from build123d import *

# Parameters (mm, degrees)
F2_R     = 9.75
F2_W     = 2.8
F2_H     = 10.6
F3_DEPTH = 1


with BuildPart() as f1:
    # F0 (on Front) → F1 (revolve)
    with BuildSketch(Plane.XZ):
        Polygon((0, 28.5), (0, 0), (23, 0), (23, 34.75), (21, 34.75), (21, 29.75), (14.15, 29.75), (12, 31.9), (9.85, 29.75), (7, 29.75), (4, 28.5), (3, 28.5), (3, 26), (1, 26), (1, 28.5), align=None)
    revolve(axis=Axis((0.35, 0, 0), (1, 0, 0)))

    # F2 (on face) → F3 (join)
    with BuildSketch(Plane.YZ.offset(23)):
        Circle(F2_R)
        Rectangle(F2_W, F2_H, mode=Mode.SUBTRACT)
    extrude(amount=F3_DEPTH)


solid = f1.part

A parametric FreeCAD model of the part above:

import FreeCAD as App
import Part
import Sketcher

V = App.Vector

doc = App.newDocument("Part")
body = doc.addObject("PartDesign::Body", "Body")

# Sketch on XZ plane
sketch1 = body.newObject("Sketcher::SketchObject", "Sketch")
sketch1.AttachmentSupport = (doc.getObject("XZ_Plane"), [""])
sketch1.MapMode = "FlatFace"
sketch1.addGeometry(Part.LineSegment(V(0, 28.5, 0), V(0, 0, 0)), False)
sketch1.addGeometry(Part.LineSegment(V(0, 0, 0), V(23, 0, 0)), False)
sketch1.addGeometry(Part.LineSegment(V(23, 0, 0), V(23, 34.8, 0)), False)
sketch1.addGeometry(Part.LineSegment(V(23, 34.8, 0), V(21, 34.8, 0)), False)
sketch1.addGeometry(Part.LineSegment(V(21, 34.8, 0), V(21, 29.8, 0)), False)
sketch1.addGeometry(Part.LineSegment(V(21, 29.8, 0), V(14.2, 29.8, 0)), False)
sketch1.addGeometry(Part.LineSegment(V(14.2, 29.8, 0), V(12, 31.9, 0)), False)
sketch1.addGeometry(Part.LineSegment(V(12, 31.9, 0), V(9.8, 29.8, 0)), False)
sketch1.addGeometry(Part.LineSegment(V(9.8, 29.8, 0), V(7, 29.8, 0)), False)
sketch1.addGeometry(Part.LineSegment(V(7, 29.8, 0), V(4, 28.5, 0)), False)
sketch1.addGeometry(Part.LineSegment(V(4, 28.5, 0), V(3, 28.5, 0)), False)
sketch1.addGeometry(Part.LineSegment(V(3, 28.5, 0), V(3, 26, 0)), False)
sketch1.addGeometry(Part.LineSegment(V(3, 26, 0), V(1, 26, 0)), False)
sketch1.addGeometry(Part.LineSegment(V(1, 26, 0), V(1, 28.5, 0)), False)
sketch1.addGeometry(Part.LineSegment(V(1, 28.5, 0), V(0, 28.5, 0)), False)
sketch1.addConstraint(Sketcher.Constraint("Coincident", 0, 2, 1, 1))
sketch1.addConstraint(Sketcher.Constraint("Coincident", 1, 2, 2, 1))
sketch1.addConstraint(Sketcher.Constraint("Coincident", 2, 2, 3, 1))
sketch1.addConstraint(Sketcher.Constraint("Coincident", 3, 2, 4, 1))
sketch1.addConstraint(Sketcher.Constraint("Coincident", 4, 2, 5, 1))
sketch1.addConstraint(Sketcher.Constraint("Coincident", 5, 2, 6, 1))
sketch1.addConstraint(Sketcher.Constraint("Coincident", 6, 2, 7, 1))
sketch1.addConstraint(Sketcher.Constraint("Coincident", 7, 2, 8, 1))
sketch1.addConstraint(Sketcher.Constraint("Coincident", 8, 2, 9, 1))
sketch1.addConstraint(Sketcher.Constraint("Coincident", 9, 2, 10, 1))
sketch1.addConstraint(Sketcher.Constraint("Coincident", 10, 2, 11, 1))
sketch1.addConstraint(Sketcher.Constraint("Coincident", 11, 2, 12, 1))
sketch1.addConstraint(Sketcher.Constraint("Coincident", 12, 2, 13, 1))
sketch1.addConstraint(Sketcher.Constraint("Coincident", 13, 2, 14, 1))
sketch1.addConstraint(Sketcher.Constraint("Coincident", 14, 2, 0, 1))
sketch1.addConstraint(Sketcher.Constraint("Vertical", 0))
sketch1.addConstraint(Sketcher.Constraint("Horizontal", 1))
sketch1.addConstraint(Sketcher.Constraint("Vertical", 2))
sketch1.addConstraint(Sketcher.Constraint("Horizontal", 3))
sketch1.addConstraint(Sketcher.Constraint("Vertical", 4))
sketch1.addConstraint(Sketcher.Constraint("Horizontal", 5))
sketch1.addConstraint(Sketcher.Constraint("Horizontal", 8))
sketch1.addConstraint(Sketcher.Constraint("Horizontal", 10))
sketch1.addConstraint(Sketcher.Constraint("Vertical", 11))
sketch1.addConstraint(Sketcher.Constraint("Horizontal", 12))
sketch1.addConstraint(Sketcher.Constraint("Vertical", 13))
sketch1.addConstraint(Sketcher.Constraint("Horizontal", 14))
sketch1.addConstraint(Sketcher.Constraint("Coincident", 0, 2, -1, 1))
sketch1.addConstraint(Sketcher.Constraint("Perpendicular", 6, 7))
sketch1.addConstraint(Sketcher.Constraint("Horizontal", 5, 2, 7, 2))
sketch1.addConstraint(Sketcher.Constraint("Horizontal", 10, 2, 13, 2))
sketch1.addConstraint(Sketcher.Constraint("Equal", 3, 12))
sketch1.addConstraint(Sketcher.Constraint("Equal", 10, 14))
sketch1.addConstraint(Sketcher.Constraint("Equal", 6, 7))
sketch1.addConstraint(Sketcher.Constraint("DistanceX", 1, 1, 1, 2, 23.0))
sketch1.addConstraint(Sketcher.Constraint("DistanceX", 3, 2, 3, 1, 2.0))
sketch1.addConstraint(Sketcher.Constraint("DistanceX", 10, 2, 10, 1, 1.0))
sketch1.addConstraint(Sketcher.Constraint("DistanceY", 4, 2, 4, 1, 5.0))
sketch1.addConstraint(Sketcher.Constraint("DistanceY", 0, 2, 0, 1, 28.5))
sketch1.addConstraint(Sketcher.Constraint("DistanceY", 11, 2, 11, 1, 2.5))
sketch1.addConstraint(Sketcher.Constraint("DistanceX", -1, 1, 6, 2, 12.0))
sketch1.addConstraint(Sketcher.Constraint("DistanceX", -1, 1, 8, 2, 7.0))
sketch1.addConstraint(Sketcher.Constraint("DistanceX", 5, 2, 5, 1, 6.85))
sketch1.addConstraint(Sketcher.Constraint("DistanceY", 2, 1, 2, 2, 34.75))
revolution = body.newObject("PartDesign::Revolution", "Revolution")
revolution.Profile = sketch1
revolution.ReferenceAxis = (sketch1, ["H_Axis"])
revolution.Angle = 360

# Sketch on YZ plane
sketch2 = body.newObject("Sketcher::SketchObject", "Sketch001")
sketch2.AttachmentSupport = (doc.getObject("YZ_Plane"), [""])
sketch2.MapMode = "FlatFace"
sketch2.AttachmentOffset = App.Placement(V(0, 0, 23), App.Rotation())
sketch2.addGeometry(Part.Circle(V(0, 0, 0), V(0, 0, 1), 9.8), False)
sketch2.addGeometry(Part.LineSegment(V(1.4, -5.3, 0), V(-1.4, -5.3, 0)), False)
sketch2.addGeometry(Part.LineSegment(V(-1.4, -5.3, 0), V(-1.4, 5.3, 0)), False)
sketch2.addGeometry(Part.LineSegment(V(-1.4, 5.3, 0), V(1.4, 5.3, 0)), False)
sketch2.addGeometry(Part.LineSegment(V(1.4, 5.3, 0), V(1.4, -5.3, 0)), False)
sketch2.addConstraint(Sketcher.Constraint("Coincident", 1, 2, 2, 1))
sketch2.addConstraint(Sketcher.Constraint("Coincident", 2, 2, 3, 1))
sketch2.addConstraint(Sketcher.Constraint("Coincident", 3, 2, 4, 1))
sketch2.addConstraint(Sketcher.Constraint("Coincident", 4, 2, 1, 1))
sketch2.addConstraint(Sketcher.Constraint("Horizontal", 1))
sketch2.addConstraint(Sketcher.Constraint("Vertical", 2))
sketch2.addConstraint(Sketcher.Constraint("Horizontal", 3))
sketch2.addConstraint(Sketcher.Constraint("Vertical", 4))
sketch2.addConstraint(Sketcher.Constraint("Coincident", 0, 3, -1, 1))
sketch2.addConstraint(Sketcher.Constraint("Symmetric", 1, 2, 3, 2, -1, 1))
sketch2.addConstraint(Sketcher.Constraint("Diameter", 0, 19.5))
sketch2.addConstraint(Sketcher.Constraint("DistanceX", 1, 2, 1, 1, 2.8))
sketch2.addConstraint(Sketcher.Constraint("DistanceY", 2, 1, 2, 2, 10.6))
pad1 = body.newObject("PartDesign::Pad", "Pad")
pad1.Profile = sketch2
pad1.Length = 1

doc.recompute()
